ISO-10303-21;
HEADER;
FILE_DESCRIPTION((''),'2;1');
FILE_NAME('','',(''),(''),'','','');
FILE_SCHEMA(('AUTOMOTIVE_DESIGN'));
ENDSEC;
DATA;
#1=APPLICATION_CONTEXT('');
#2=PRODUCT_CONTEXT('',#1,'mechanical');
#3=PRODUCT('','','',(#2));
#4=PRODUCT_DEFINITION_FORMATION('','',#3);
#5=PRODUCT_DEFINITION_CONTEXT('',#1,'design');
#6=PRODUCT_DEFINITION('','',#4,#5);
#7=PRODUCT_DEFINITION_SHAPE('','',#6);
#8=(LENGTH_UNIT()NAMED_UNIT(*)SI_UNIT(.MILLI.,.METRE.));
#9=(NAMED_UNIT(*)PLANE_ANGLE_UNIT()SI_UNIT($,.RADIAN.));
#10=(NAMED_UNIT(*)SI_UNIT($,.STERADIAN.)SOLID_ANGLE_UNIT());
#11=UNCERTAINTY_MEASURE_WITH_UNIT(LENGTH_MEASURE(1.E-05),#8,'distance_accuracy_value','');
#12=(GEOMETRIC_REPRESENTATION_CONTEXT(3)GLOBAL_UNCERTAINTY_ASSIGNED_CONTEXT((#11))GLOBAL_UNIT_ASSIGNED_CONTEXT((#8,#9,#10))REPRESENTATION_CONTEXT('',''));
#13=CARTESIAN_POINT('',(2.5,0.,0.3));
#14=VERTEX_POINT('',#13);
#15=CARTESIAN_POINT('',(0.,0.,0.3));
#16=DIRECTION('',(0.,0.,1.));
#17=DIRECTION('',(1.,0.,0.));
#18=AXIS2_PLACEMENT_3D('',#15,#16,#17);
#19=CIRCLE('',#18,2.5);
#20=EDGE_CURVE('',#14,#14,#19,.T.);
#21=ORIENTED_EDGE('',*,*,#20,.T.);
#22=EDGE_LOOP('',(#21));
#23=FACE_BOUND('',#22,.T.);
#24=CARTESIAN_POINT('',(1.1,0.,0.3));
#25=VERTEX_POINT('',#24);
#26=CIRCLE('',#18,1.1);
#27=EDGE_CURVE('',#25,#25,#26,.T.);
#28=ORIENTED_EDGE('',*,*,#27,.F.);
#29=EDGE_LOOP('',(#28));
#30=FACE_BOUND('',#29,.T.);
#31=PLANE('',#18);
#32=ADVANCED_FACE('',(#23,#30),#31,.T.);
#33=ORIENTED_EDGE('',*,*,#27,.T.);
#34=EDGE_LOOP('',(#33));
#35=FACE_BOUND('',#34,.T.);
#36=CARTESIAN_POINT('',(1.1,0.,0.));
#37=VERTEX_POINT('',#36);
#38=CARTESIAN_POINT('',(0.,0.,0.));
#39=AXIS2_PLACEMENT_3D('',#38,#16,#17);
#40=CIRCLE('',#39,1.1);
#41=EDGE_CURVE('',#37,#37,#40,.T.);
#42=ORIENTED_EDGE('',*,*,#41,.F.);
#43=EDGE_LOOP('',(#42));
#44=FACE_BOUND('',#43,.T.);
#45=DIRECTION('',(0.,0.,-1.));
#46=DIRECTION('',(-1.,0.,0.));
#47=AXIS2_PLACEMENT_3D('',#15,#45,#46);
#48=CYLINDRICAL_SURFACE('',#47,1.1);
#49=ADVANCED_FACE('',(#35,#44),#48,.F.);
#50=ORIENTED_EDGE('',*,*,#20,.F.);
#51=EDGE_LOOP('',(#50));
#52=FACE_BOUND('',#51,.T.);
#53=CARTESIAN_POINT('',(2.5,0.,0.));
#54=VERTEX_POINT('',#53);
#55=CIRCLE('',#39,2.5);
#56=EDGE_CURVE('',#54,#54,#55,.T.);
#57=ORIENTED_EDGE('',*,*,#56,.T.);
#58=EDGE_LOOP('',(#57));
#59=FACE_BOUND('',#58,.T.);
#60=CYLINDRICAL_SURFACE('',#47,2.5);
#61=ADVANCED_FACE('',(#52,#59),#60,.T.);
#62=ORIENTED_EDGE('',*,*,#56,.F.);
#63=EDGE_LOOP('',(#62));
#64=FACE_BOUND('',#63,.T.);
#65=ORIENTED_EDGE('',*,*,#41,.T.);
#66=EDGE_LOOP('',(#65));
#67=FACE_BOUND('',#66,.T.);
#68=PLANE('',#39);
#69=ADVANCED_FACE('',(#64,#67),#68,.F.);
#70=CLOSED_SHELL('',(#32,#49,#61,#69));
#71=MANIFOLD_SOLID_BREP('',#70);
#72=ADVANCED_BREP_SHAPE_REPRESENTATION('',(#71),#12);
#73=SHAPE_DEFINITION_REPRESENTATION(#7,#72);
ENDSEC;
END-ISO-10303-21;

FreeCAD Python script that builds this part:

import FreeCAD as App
import Part
import Sketcher

doc = App.newDocument("Part")
body = doc.addObject("PartDesign::Body", "Body")

sketch1 = body.newObject("Sketcher::SketchObject", "Sketch")
sketch1.AttachmentSupport = (doc.getObject("XY_Plane"), [""])
sketch1.MapMode = "FlatFace"
sketch1.addGeometry([
    Part.Circle(App.Vector(0, 0, 0), App.Vector(0, 0, 1), 2.5),
    Part.Circle(App.Vector(0, 0, 0), App.Vector(0, 0, 1), 1.1),
], False)
sketch1.addConstraint([
    Sketcher.Constraint("Coincident", 0, 3, -1, 1),
    Sketcher.Constraint("Coincident", 1, 3, -1, 1),
    Sketcher.Constraint("Diameter", 0, 5.0),
    Sketcher.Constraint("Diameter", 1, 2.2),
])
pad1 = body.newObject("PartDesign::Pad", "Pad")
pad1.Profile = sketch1
pad1.Length = 0.3

doc.recompute()
